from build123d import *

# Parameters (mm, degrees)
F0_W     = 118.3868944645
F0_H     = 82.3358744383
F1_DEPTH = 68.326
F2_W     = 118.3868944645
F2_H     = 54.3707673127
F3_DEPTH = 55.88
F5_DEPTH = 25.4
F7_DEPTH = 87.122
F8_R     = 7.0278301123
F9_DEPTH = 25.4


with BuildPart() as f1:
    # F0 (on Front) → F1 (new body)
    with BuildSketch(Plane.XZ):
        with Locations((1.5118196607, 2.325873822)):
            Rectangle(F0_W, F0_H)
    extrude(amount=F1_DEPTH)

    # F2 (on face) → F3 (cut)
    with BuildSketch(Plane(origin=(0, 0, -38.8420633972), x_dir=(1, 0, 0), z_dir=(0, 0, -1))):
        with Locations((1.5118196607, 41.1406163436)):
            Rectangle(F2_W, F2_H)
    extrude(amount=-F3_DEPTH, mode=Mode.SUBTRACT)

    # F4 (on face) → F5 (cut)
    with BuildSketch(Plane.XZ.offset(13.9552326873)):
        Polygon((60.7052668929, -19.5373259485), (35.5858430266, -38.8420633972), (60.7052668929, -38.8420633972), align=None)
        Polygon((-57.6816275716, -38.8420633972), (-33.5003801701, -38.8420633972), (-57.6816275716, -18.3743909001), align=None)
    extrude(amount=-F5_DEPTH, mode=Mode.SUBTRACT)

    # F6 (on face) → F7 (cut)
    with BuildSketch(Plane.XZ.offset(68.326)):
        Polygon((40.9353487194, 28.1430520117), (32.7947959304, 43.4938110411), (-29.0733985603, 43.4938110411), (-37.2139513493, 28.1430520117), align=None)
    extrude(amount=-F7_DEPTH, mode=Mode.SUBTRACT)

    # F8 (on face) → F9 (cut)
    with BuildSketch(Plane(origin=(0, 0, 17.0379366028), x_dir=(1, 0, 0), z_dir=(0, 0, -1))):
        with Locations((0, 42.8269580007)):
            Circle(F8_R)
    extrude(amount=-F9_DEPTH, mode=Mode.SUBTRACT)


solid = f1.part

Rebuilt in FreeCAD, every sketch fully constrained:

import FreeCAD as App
import Part
import Sketcher

V = App.Vector
Q = App.Units.Quantity

doc = App.newDocument("Part")
params = doc.addObject("Spreadsheet::Sheet", "Params")
for row, (alias, value) in enumerate([
    ("pad1_length", "2.69 in"),
    ("pocket1_length", "2.2 in"),
    ("pocket2_length", "1 in"),
    ("pocket3_length", "3.43 in"),
    ("pocket4_length", "1 in"),
], start=1):
    params.set(f"A{row}", alias)
    params.set(f"B{row}", "=" + value)
    params.setAlias(f"B{row}", alias)

body = doc.addObject("PartDesign::Body", "Body")

# Sketch on XZ plane
sketch1 = doc.addObject("Sketcher::SketchObject", "Sketch")
body.addObject(sketch1)
sketch1.AttachmentSupport = (doc.XZ_Plane, [""])
sketch1.MapMode = "FlatFace"
sketch1.addGeometry([
    Part.LineSegment(V(-58, 43, 0), V(-58, -39, 0)),
    Part.LineSegment(V(-58, -39, 0), V(61, -39, 0)),
    Part.LineSegment(V(61, -39, 0), V(61, 43, 0)),
    Part.LineSegment(V(61, 43, 0), V(-58, 43, 0)),
], False)
sketch1.addConstraint([
    Sketcher.Constraint("Coincident", 0, 2, 1, 1),
    Sketcher.Constraint("Coincident", 1, 2, 2, 1),
    Sketcher.Constraint("Coincident", 2, 2, 3, 1),
    Sketcher.Constraint("Coincident", 3, 2, 0, 1),
    Sketcher.Constraint("Vertical", 0),
    Sketcher.Constraint("Horizontal", 1),
    Sketcher.Constraint("Vertical", 2),
    Sketcher.Constraint("Horizontal", 3),
    Sketcher.Constraint("DistanceX", 1, 1, 1, 2, Q("118.386894 mm")),
    Sketcher.Constraint("DistanceY", 0, 2, 0, 1, Q("82.335874 mm")),
    Sketcher.Constraint("DistanceY", -1, 1, 2, 2, Q("43.493811 mm")),
    Sketcher.Constraint("DistanceX", 0, 2, -1, 1, Q("57.681628 mm")),
])
pad1 = doc.addObject("PartDesign::Pad", "Pad")
body.addObject(pad1)
pad1.Profile = sketch1
pad1.setExpression("Length", "Params.pad1_length")

# Sketch on XY plane
sketch2 = doc.addObject("Sketcher::SketchObject", "Sketch001")
body.addObject(sketch2)
sketch2.AttachmentSupport = (doc.XY_Plane, [""])
sketch2.MapMode = "FlatFace"
sketch2.AttachmentOffset = App.Placement(V(0, 0, -38.842063), App.Rotation())
sketch2.addGeometry([
    Part.LineSegment(V(-58, -68, 0), V(-58, -14, 0)),
    Part.LineSegment(V(-58, -14, 0), V(61, -14, 0)),
    Part.LineSegment(V(61, -14, 0), V(61, -68, 0)),
    Part.LineSegment(V(61, -68, 0), V(-58, -68, 0)),
], False)
sketch2.addConstraint([
    Sketcher.Constraint("Coincident", 0, 2, 1, 1),
    Sketcher.Constraint("Coincident", 1, 2, 2, 1),
    Sketcher.Constraint("Coincident", 2, 2, 3, 1),
    Sketcher.Constraint("Coincident", 3, 2, 0, 1),
    Sketcher.Constraint("Vertical", 0),
    Sketcher.Constraint("Horizontal", 1),
    Sketcher.Constraint("Vertical", 2),
    Sketcher.Constraint("Horizontal", 3),
    Sketcher.Constraint("DistanceY", 2, 2, -1, 1, Q("2.69 in")),
    Sketcher.Constraint("DistanceX", 1, 1, 1, 2, Q("118.386894 mm")),
    Sketcher.Constraint("DistanceY", 0, 1, 0, 2, Q("54.370767 mm")),
    Sketcher.Constraint("DistanceX", 0, 2, -1, 1, Q("57.681628 mm")),
])
pocket1 = doc.addObject("PartDesign::Pocket", "Pocket")
body.addObject(pocket1)
pocket1.Profile = sketch2
pocket1.setExpression("Length", "Params.pocket1_length")
pocket1.Reversed = True

# Sketch on XZ plane
sketch3 = doc.addObject("Sketcher::SketchObject", "Sketch002")
body.addObject(sketch3)
sketch3.AttachmentSupport = (doc.XZ_Plane, [""])
sketch3.MapMode = "FlatFace"
sketch3.AttachmentOffset = App.Placement(V(0, 0, 13.955233), App.Rotation())
sketch3.addGeometry([
    Part.LineSegment(V(61, -20, 0), V(36, -39, 0)),  # 0
    Part.LineSegment(V(36, -39, 0), V(61, -39, 0)),  # 1
    Part.LineSegment(V(61, -39, 0), V(61, -20, 0)),  # 2
    Part.LineSegment(V(-58, -39, 0), V(-34, -39, 0)),  # 3
    Part.LineSegment(V(-34, -39, 0), V(-58, -18, 0)),  # 4
    Part.LineSegment(V(-58, -18, 0), V(-58, -39, 0)),  # 5
], False)
sketch3.addConstraint([
    Sketcher.Constraint("Coincident", 0, 2, 1, 1),
    Sketcher.Constraint("Coincident", 1, 2, 2, 1),
    Sketcher.Constraint("Coincident", 2, 2, 0, 1),
    Sketcher.Constraint("Coincident", 3, 2, 4, 1),
    Sketcher.Constraint("Coincident", 4, 2, 5, 1),
    Sketcher.Constraint("Coincident", 5, 2, 3, 1),
    Sketcher.Constraint("Horizontal", 1),
    Sketcher.Constraint("Vertical", 2),
    Sketcher.Constraint("Horizontal", 3),
    Sketcher.Constraint("Vertical", 5),
    Sketcher.Constraint("Horizontal", 1, 2, 3, 2),
    Sketcher.Constraint("Equal", 0, 4),
    Sketcher.Constraint("DistanceX", 1, 1, 1, 2, Q("25.119424 mm")),
    Sketcher.Constraint("DistanceX", 3, 1, 3, 2, Q("24.181247 mm")),
    Sketcher.Constraint("DistanceY", 2, 1, 2, 2, Q("19.304737 mm")),
    Sketcher.Constraint("DistanceX", 3, 2, -1, 1, Q("33.50038 mm")),
    Sketcher.Constraint("DistanceY", 4, 2, -1, 1, Q("18.374391 mm")),
    Sketcher.Constraint("DistanceX", 4, 2, 0, 2, Q("93.267471 mm")),
])
pocket2 = doc.addObject("PartDesign::Pocket", "Pocket001")
body.addObject(pocket2)
pocket2.Profile = sketch3
pocket2.setExpression("Length", "Params.pocket2_length")

# Sketch on XZ plane
sketch4 = doc.addObject("Sketcher::SketchObject", "Sketch003")
body.addObject(sketch4)
sketch4.AttachmentSupport = (doc.XZ_Plane, [""])
sketch4.MapMode = "FlatFace"
sketch4.AttachmentOffset = App.Placement(V(0, 0, 2.69 * 25.4), App.Rotation())
sketch4.addGeometry([
    Part.LineSegment(V(41, 28, 0), V(33, 43, 0)),
    Part.LineSegment(V(33, 43, 0), V(-29, 43, 0)),
    Part.LineSegment(V(-29, 43, 0), V(-37, 28, 0)),
    Part.LineSegment(V(-37, 28, 0), V(41, 28, 0)),
], False)
sketch4.addConstraint([
    Sketcher.Constraint("Coincident", 0, 2, 1, 1),
    Sketcher.Constraint("Coincident", 1, 2, 2, 1),
    Sketcher.Constraint("Coincident", 2, 2, 3, 1),
    Sketcher.Constraint("Coincident", 3, 2, 0, 1),
    Sketcher.Constraint("Horizontal", 1),
    Sketcher.Constraint("Horizontal", 3),
    Sketcher.Constraint("Equal", 0, 2),
    Sketcher.Constraint("DistanceX", 3, 1, 3, 2, Q("78.1493 mm")),
    Sketcher.Constraint("DistanceX", 1, 2, -1, 1, Q("29.073399 mm")),
    Sketcher.Constraint("DistanceX", 1, 2, 1, 1, Q("61.868194 mm")),
    Sketcher.Constraint("DistanceY", -1, 1, 0, 2, Q("43.493811 mm")),
    Sketcher.Constraint("DistanceY", 2, 2, 1, 2, Q("15.350759 mm")),
])
pocket3 = doc.addObject("PartDesign::Pocket", "Pocket002")
body.addObject(pocket3)
pocket3.Profile = sketch4
pocket3.setExpression("Length", "Params.pocket3_length")

# Sketch on XY plane
sketch5 = doc.addObject("Sketcher::SketchObject", "Sketch004")
body.addObject(sketch5)
sketch5.AttachmentSupport = (doc.XY_Plane, [""])
sketch5.MapMode = "FlatFace"
sketch5.AttachmentOffset = App.Placement(V(0, 0, 17.037937), App.Rotation())
sketch5.addGeometry(Part.Circle(V(0, -43, 0), V(0, 0, 1), 7), False)
sketch5.addConstraint([
    Sketcher.Constraint("PointOnObject", 0, 3, -2),
    Sketcher.Constraint("Diameter", 0, Q("14.05566 mm")),
    Sketcher.Constraint("DistanceY", 0, 3, -1, 1, Q("42.826958 mm")),
])
pocket4 = doc.addObject("PartDesign::Pocket", "Pocket003")
body.addObject(pocket4)
pocket4.Profile = sketch5
pocket4.setExpression("Length", "Params.pocket4_length")
pocket4.Reversed = True

doc.recompute()
